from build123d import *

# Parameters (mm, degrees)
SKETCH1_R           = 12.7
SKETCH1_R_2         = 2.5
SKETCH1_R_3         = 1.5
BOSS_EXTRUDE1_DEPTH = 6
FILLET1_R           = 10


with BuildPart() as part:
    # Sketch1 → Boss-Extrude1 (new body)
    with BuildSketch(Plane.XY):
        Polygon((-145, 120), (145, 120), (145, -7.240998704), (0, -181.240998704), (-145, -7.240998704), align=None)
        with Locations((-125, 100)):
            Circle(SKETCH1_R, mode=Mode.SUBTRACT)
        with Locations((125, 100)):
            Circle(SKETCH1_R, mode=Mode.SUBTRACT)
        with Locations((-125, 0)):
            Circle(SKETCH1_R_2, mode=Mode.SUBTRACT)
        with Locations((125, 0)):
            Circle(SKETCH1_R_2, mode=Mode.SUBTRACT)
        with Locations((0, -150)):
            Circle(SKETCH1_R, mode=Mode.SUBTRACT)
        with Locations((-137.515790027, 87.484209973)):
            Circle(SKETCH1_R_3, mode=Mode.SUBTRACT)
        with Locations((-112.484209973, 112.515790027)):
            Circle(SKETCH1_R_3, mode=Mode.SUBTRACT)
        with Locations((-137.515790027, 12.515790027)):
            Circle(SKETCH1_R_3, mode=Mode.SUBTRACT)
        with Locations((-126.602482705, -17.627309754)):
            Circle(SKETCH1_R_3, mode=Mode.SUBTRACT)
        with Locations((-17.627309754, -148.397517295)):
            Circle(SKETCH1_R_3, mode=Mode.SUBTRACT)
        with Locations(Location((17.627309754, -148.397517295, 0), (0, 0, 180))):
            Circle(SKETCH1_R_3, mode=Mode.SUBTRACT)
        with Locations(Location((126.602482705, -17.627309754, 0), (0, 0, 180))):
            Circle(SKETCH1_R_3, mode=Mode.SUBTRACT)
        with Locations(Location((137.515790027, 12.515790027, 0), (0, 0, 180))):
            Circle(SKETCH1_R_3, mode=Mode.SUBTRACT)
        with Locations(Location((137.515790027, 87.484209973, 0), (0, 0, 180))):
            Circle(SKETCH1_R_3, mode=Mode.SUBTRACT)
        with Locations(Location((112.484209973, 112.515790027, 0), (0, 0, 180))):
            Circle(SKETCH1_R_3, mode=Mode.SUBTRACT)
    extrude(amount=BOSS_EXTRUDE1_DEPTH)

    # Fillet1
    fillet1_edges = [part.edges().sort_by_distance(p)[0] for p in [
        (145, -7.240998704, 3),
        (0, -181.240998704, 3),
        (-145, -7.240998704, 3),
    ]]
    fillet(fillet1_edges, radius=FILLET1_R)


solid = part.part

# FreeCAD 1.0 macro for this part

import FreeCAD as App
import Part
import Sketcher
Q = App.Units.Quantity


def edges_at(feature, points):
    """Names of the edges that pass closest to the given points."""
    edges = feature.Shape.Edges
    near = lambda p: min(range(len(edges)), key=lambda i: edges[i].distToShape(Part.Vertex(*p))[0])
    return sorted({f"Edge{near(p) + 1}" for p in points})


def add_polygon(sketch, points):
    """Adds a closed chain of lines whose ends are joined by coincident constraints."""
    first, n = sketch.GeometryCount, len(points)
    for a, b in zip(points, points[1:] + points[:1]):
        sketch.addGeometry(Part.LineSegment(App.Vector(*a, 0), App.Vector(*b, 0)), False)
    for i in range(n):
        sketch.addConstraint(Sketcher.Constraint("Coincident", first + i, 2, first + (i + 1) % n, 1))

doc = App.newDocument("Part")
body = doc.addObject("PartDesign::Body", "Body")

sketch1 = doc.addObject("Sketcher::SketchObject", "Sketch")
body.addObject(sketch1)
sketch1.AttachmentSupport = (doc.XY_Plane, [""])
sketch1.MapMode = "FlatFace"
add_polygon(sketch1, [(145, 120), (-145, 120), (-145, -7.2), (0, -181.2), (145, -7.2)])
sketch1.addGeometry(Part.Circle(App.Vector(17.6, -148.4, 0), App.Vector(0, 0, 1), 1.5), False)
sketch1.addGeometry(Part.Circle(App.Vector(0, -150, 0), App.Vector(0, 0, 1), 12.7), False)
sketch1.addGeometry(Part.Circle(App.Vector(-17.6, -148.4, 0), App.Vector(0, 0, 1), 1.5), False)
sketch1.addGeometry(Part.Circle(App.Vector(126.6, -17.6, 0), App.Vector(0, 0, 1), 1.5), False)
sketch1.addGeometry(Part.Circle(App.Vector(125, 0, 0), App.Vector(0, 0, 1), 2.5), False)
sketch1.addGeometry(Part.Circle(App.Vector(137.5, 12.5, 0), App.Vector(0, 0, 1), 1.5), False)
sketch1.addGeometry(Part.Circle(App.Vector(137.5, 87.5, 0), App.Vector(0, 0, 1), 1.5), False)
sketch1.addGeometry(Part.Circle(App.Vector(125, 100, 0), App.Vector(0, 0, 1), 12.7), False)
sketch1.addGeometry(Part.Circle(App.Vector(112.5, 112.5, 0), App.Vector(0, 0, 1), 1.5), False)
sketch1.addGeometry(Part.Circle(App.Vector(-126.6, -17.6, 0), App.Vector(0, 0, 1), 1.5), False)
sketch1.addGeometry(Part.Circle(App.Vector(-125, 0, 0), App.Vector(0, 0, 1), 2.5), False)
sketch1.addGeometry(Part.Circle(App.Vector(-137.5, 12.5, 0), App.Vector(0, 0, 1), 1.5), False)
sketch1.addGeometry(Part.Circle(App.Vector(-137.5, 87.5, 0), App.Vector(0, 0, 1), 1.5), False)
sketch1.addGeometry(Part.Circle(App.Vector(-112.5, 112.5, 0), App.Vector(0, 0, 1), 1.5), False)
sketch1.addGeometry(Part.Circle(App.Vector(-125, 100, 0), App.Vector(0, 0, 1), 12.7), False)
sketch1.addConstraint(Sketcher.Constraint("Horizontal", 0))
sketch1.addConstraint(Sketcher.Constraint("Vertical", 1))
sketch1.addConstraint(Sketcher.Constraint("Vertical", 4))
sketch1.addConstraint(Sketcher.Constraint("Equal", 5, 7))
sketch1.addConstraint(Sketcher.Constraint("Equal", 7, 8))
sketch1.addConstraint(Sketcher.Constraint("Equal", 8, 10))
sketch1.addConstraint(Sketcher.Constraint("Equal", 10, 11))
sketch1.addConstraint(Sketcher.Constraint("Equal", 6, 12))
sketch1.addConstraint(Sketcher.Constraint("Equal", 11, 13))
sketch1.addConstraint(Sketcher.Constraint("Equal", 13, 14))
sketch1.addConstraint(Sketcher.Constraint("Equal", 9, 15))
sketch1.addConstraint(Sketcher.Constraint("Equal", 14, 16))
sketch1.addConstraint(Sketcher.Constraint("Equal", 16, 17))
sketch1.addConstraint(Sketcher.Constraint("Equal", 17, 18))
sketch1.addConstraint(Sketcher.Constraint("Equal", 12, 19))
sketch1.addConstraint(Sketcher.Constraint("Symmetric", 9, 3, 15, 3, -1, 1))
sketch1.addConstraint(Sketcher.Constraint("Symmetric", 5, 3, 7, 3, -2))
sketch1.addConstraint(Sketcher.Constraint("Symmetric", 8, 3, 14, 3, -2))
sketch1.addConstraint(Sketcher.Constraint("Symmetric", 10, 3, 16, 3, -2))
sketch1.addConstraint(Sketcher.Constraint("Symmetric", 11, 3, 17, 3, -2))
sketch1.addConstraint(Sketcher.Constraint("Symmetric", 13, 3, 18, 3, -2))
sketch1.addConstraint(Sketcher.Constraint("Symmetric", 12, 3, 19, 3, -2))
sketch1.addConstraint(Sketcher.Constraint("Symmetric", 1, 2, 3, 2, -2))
sketch1.addConstraint(Sketcher.Constraint("PointOnObject", 6, 3, -2))
sketch1.addConstraint(Sketcher.Constraint("PointOnObject", 9, 3, -1))
sketch1.addConstraint(Sketcher.Constraint("PointOnObject", 2, 2, -2))
sketch1.addConstraint(Sketcher.Constraint("Vertical", 10, 3, 11, 3))
sketch1.addConstraint(Sketcher.Constraint("Vertical", 9, 3, 12, 3))
sketch1.addConstraint(Sketcher.Constraint("Diameter", 5, Q("3 mm")))
sketch1.addConstraint(Sketcher.Constraint("Diameter", 9, Q("5 mm")))
sketch1.addConstraint(Sketcher.Constraint("Diameter", 6, Q("25.4 mm")))
sketch1.addConstraint(Sketcher.Constraint("DistanceX", 0, 2, 0, 1, Q("290 mm")))
sketch1.addConstraint(Sketcher.Constraint("DistanceY", 6, 3, -1, 1, Q("150 mm")))
sketch1.addConstraint(Sketcher.Constraint("DistanceX", -1, 1, 9, 3, Q("125 mm")))
sketch1.addConstraint(Sketcher.Constraint("DistanceY", -1, 1, 12, 3, Q("100 mm")))
sketch1.addConstraint(Sketcher.Constraint("DistanceY", -1, 1, 0, 2, Q("120 mm")))
sketch1.addConstraint(Sketcher.Constraint("DistanceY", 10, 3, 13, 3, Q("100 mm")))
sketch1.addConstraint(Sketcher.Constraint("DistanceX", 17, 3, 13, 3, Q("250 mm")))
sketch1.addConstraint(Sketcher.Constraint("DistanceY", 1, 2, 1, 1, Q("127.240999 mm")))
sketch1.addConstraint(Sketcher.Constraint("DistanceY", 2, 2, -1, 1, Q("181.240999 mm")))
sketch1.addConstraint(Sketcher.Constraint("DistanceY", 8, 3, 10, 3, Q("30.1431 mm")))
sketch1.addConstraint(Sketcher.Constraint("DistanceX", 7, 3, 10, 3, Q("155.1431 mm")))
sketch1.addConstraint(Sketcher.Constraint("DistanceX", -1, 1, 5, 3, Q("17.62731 mm")))
sketch1.addConstraint(Sketcher.Constraint("DistanceY", 8, 3, -1, 1, Q("17.62731 mm")))
sketch1.addConstraint(Sketcher.Constraint("DistanceY", -1, 1, 11, 3, Q("87.48421 mm")))
sketch1.addConstraint(Sketcher.Constraint("DistanceY", 2, 2, 5, 3, Q("32.843481 mm")))
sketch1.addConstraint(Sketcher.Constraint("DistanceX", -1, 1, 8, 3, Q("126.602483 mm")))
pad1 = doc.addObject("PartDesign::Pad", "Pad")
body.addObject(pad1)
pad1.Profile = sketch1
pad1.Length = 6
doc.recompute()

fillet = doc.addObject("PartDesign::Fillet", "Fillet")
body.addObject(fillet)
fillet.Base = (pad1, edges_at(pad1, [(145, -7.241, 3), (0, -181.241, 3), (-145, -7.241, 3)]))
fillet.Radius = 10

doc.recompute()
